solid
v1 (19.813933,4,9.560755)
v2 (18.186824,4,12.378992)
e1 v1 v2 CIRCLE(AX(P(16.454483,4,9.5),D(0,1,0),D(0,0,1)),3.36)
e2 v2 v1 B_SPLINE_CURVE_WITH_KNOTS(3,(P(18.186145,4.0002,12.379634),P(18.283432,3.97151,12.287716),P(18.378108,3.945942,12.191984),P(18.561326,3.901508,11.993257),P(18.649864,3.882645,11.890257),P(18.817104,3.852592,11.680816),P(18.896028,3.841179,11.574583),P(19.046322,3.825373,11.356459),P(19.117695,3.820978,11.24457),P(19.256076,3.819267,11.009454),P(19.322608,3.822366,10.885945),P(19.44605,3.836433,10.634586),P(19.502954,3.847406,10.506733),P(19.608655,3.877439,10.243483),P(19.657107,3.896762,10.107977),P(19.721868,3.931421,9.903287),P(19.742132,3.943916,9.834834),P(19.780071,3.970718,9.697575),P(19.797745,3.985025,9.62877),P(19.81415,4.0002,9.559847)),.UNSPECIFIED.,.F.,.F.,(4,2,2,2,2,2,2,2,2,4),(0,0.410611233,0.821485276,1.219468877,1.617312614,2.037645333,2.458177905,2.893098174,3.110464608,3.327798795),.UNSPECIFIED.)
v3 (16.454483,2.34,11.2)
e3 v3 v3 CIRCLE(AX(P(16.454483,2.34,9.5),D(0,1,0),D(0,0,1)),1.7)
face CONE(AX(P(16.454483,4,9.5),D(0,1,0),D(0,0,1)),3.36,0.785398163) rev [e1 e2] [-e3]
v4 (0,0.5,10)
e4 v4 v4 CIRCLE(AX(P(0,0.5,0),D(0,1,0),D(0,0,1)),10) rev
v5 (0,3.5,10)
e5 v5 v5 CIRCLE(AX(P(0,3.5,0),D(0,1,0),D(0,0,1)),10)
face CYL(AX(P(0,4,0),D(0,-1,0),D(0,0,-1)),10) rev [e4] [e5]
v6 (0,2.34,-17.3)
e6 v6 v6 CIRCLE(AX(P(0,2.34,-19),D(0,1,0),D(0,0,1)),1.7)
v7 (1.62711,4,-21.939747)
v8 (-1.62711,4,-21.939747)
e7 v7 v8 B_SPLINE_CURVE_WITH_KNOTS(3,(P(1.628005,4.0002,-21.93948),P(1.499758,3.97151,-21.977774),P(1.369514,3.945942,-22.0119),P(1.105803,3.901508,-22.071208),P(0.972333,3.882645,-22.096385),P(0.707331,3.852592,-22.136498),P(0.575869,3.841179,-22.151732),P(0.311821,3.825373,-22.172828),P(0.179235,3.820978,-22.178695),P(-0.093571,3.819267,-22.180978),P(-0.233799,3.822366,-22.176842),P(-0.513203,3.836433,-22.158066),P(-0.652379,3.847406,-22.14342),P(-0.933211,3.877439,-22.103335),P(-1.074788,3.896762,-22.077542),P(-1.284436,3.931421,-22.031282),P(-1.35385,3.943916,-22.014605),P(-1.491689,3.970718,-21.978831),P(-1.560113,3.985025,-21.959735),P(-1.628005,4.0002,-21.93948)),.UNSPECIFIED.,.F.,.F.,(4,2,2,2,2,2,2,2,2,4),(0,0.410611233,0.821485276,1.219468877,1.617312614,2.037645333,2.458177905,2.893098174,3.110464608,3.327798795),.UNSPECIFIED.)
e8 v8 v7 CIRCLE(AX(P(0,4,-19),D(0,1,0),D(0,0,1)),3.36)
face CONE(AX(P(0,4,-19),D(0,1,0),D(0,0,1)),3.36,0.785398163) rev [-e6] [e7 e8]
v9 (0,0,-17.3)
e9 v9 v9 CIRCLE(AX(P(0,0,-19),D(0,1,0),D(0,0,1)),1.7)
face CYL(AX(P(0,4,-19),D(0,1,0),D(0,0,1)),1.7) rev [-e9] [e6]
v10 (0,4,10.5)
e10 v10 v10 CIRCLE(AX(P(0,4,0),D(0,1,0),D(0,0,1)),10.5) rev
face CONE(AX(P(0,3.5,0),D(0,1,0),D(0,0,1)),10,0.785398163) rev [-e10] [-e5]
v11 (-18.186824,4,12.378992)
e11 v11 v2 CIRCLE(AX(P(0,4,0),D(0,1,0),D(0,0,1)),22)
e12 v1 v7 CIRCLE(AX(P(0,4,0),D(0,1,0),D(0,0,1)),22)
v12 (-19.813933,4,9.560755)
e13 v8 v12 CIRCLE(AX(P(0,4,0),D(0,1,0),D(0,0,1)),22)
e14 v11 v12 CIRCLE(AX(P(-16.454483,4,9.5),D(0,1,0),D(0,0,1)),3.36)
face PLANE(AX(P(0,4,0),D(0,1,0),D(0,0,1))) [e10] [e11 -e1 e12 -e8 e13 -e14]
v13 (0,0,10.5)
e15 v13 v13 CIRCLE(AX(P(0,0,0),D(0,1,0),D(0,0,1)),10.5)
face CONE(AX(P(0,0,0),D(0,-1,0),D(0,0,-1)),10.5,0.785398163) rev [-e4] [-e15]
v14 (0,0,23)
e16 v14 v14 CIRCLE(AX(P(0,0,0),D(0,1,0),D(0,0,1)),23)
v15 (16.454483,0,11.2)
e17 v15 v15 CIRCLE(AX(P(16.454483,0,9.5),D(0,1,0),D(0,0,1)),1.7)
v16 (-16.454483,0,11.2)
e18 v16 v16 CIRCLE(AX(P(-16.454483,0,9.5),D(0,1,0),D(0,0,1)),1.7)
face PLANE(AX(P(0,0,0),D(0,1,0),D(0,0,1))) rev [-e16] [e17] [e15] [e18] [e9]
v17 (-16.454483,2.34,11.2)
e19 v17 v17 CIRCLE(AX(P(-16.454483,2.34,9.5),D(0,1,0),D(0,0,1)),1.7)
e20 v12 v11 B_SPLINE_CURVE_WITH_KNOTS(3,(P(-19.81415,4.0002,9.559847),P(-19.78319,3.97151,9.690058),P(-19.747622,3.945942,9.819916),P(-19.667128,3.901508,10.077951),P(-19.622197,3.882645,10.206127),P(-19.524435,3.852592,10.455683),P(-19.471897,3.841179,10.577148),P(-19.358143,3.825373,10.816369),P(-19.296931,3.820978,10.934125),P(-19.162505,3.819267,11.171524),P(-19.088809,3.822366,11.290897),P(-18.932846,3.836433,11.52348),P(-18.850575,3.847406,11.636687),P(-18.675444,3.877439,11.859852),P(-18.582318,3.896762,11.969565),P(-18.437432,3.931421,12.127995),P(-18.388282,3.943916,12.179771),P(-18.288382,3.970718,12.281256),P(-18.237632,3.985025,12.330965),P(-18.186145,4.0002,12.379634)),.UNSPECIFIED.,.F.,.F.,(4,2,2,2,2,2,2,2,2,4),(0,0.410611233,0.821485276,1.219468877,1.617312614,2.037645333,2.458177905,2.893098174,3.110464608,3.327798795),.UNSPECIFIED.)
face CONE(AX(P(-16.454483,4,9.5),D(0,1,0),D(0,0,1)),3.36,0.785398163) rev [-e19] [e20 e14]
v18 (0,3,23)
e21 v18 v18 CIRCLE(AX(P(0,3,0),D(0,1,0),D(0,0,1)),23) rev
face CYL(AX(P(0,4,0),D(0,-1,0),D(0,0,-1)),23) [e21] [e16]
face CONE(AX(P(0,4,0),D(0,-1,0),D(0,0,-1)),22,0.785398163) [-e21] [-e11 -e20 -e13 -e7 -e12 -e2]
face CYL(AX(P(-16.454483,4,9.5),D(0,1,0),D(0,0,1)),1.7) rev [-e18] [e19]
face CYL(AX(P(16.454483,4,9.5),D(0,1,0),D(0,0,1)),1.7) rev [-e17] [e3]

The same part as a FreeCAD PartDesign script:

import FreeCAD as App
import Part
import Sketcher
from FreeCAD import Vector


def edges_at(feature, points):
    """Names of the edges that pass closest to the given points."""
    edges = feature.Shape.Edges
    near = lambda p: min(range(len(edges)), key=lambda i: edges[i].distToShape(Part.Vertex(*p))[0])
    return sorted({f"Edge{near(p) + 1}" for p in points})

doc = App.newDocument("Part")
params = doc.addObject("Spreadsheet::Sheet", "Params")
for row, (alias, value) in enumerate([
    ("sketch1_diameter", "46 mm"),
    ("sketch1_diameter2", "20 mm"),
    ("pad1_length", "4 mm"),
    ("chamfer_size", "0.5 mm"),
    ("chamfer2_size", "1 mm"),
    ("sketch2_diameter", "3.4 mm"),
    ("hole_diameter", "3.4 mm"),
    ("hole_csink_diameter", "6.72 mm"),
], start=1):
    params.set(f"A{row}", alias)
    params.set(f"B{row}", "=" + value)
    params.setAlias(f"B{row}", alias)

body = doc.addObject("PartDesign::Body", "Body")

# Sketch on XZ plane
sketch1 = body.newObject("Sketcher::SketchObject", "Sketch")
sketch1.AttachmentSupport = (doc.getObject("XZ_Plane"), [""])
sketch1.MapMode = "FlatFace"
sketch1.addGeometry([
    Part.Circle(Vector(0, 0, 0), Vector(0, 0, 1), 23),
    Part.Circle(Vector(0, 0, 0), Vector(0, 0, 1), 10),
], False)
sketch1.addConstraint([
    Sketcher.Constraint("Coincident", 0, 3, -1, 1),
    Sketcher.Constraint("Coincident", 1, 3, -1, 1),
    Sketcher.Constraint("Diameter", 0, 46.0),
    Sketcher.Constraint("Diameter", 1, 20.0),
])
sketch1.setExpression("Constraints[2]", "Params.sketch1_diameter")
sketch1.setExpression("Constraints[3]", "Params.sketch1_diameter2")
pad1 = body.newObject("PartDesign::Pad", "Pad")
pad1.Profile = sketch1
pad1.setExpression("Length", "Params.pad1_length")
pad1.Reversed = True
doc.recompute()

chamfer = body.newObject("PartDesign::Chamfer", "Chamfer")
chamfer.Base = (pad1, edges_at(pad1, [(0, 0, -10), (0, 4, -10)]))
chamfer.setExpression("Size", "Params.chamfer_size")
doc.recompute()

chamfer2 = body.newObject("PartDesign::Chamfer", "Chamfer001")
chamfer2.Base = (chamfer, edges_at(chamfer, [(0, 4, -23)]))
chamfer2.setExpression("Size", "Params.chamfer2_size")

# Sketch on XZ plane
sketch2 = body.newObject("Sketcher::SketchObject", "Sketch001")
sketch2.AttachmentSupport = (doc.getObject("XZ_Plane"), [""])
sketch2.MapMode = "FlatFace"
sketch2.AttachmentOffset = App.Placement(Vector(0, 0, -4), App.Rotation())
sketch2.addGeometry([
    Part.Circle(Vector(0, -19, 0), Vector(0, 0, 1), 1.7),
    Part.Circle(Vector(16.5, 9.5, 0), Vector(0, 0, 1), 1.7),
    Part.Circle(Vector(-16.5, 9.5, 0), Vector(0, 0, 1), 1.7),
], False)
sketch2.addConstraint([
    Sketcher.Constraint("Equal", 0, 1),
    Sketcher.Constraint("Equal", 1, 2),
    Sketcher.Constraint("Symmetric", 1, 3, 2, 3, -2),
    Sketcher.Constraint("PointOnObject", 0, 3, -2),
    Sketcher.Constraint("Diameter", 0, 3.4),
    Sketcher.Constraint("DistanceY", 0, 3, -1, 1, 19.0),
    Sketcher.Constraint("DistanceY", -1, 1, 1, 3, 9.5),
    Sketcher.Constraint("DistanceX", -1, 1, 1, 3, 16.454483),
])
sketch2.setExpression("Constraints[4]", "Params.sketch2_diameter")
doc.recompute()
hole = body.newObject("PartDesign::Hole", "Hole")
hole.Profile = sketch2
hole.ThreadType = "None"
hole.setExpression("Diameter", "Params.hole_diameter")
hole.DepthType = "ThroughAll"
hole.HoleCutType = "Countersink"
hole.setExpression("HoleCutDiameter", "Params.hole_csink_diameter")
hole.HoleCutCountersinkAngle = 90
hole.Reversed = True

doc.recompute()
